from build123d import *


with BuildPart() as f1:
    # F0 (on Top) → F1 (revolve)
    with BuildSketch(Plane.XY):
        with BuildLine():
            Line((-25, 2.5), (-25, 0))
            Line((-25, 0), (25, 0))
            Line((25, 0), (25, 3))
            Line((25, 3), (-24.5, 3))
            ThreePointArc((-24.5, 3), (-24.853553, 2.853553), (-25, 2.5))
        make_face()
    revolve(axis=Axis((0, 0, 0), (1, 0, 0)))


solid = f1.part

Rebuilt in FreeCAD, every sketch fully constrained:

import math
import FreeCAD as App
import Part
import Sketcher
from FreeCAD import Vector
Q = App.Units.Quantity

doc = App.newDocument("Part")
params = doc.addObject("Spreadsheet::Sheet", "Params")
for row, (alias, value) in enumerate([
    ("sketch1_radius", "0.500001 mm"),
    ("sketch1_width", "50 mm"),
    ("sketch1_height", "3 mm"),
    ("sketch1_height2", "2.5 mm"),
    ("revolution_angle", "360 deg"),
], start=1):
    params.set(f"A{row}", alias)
    params.set(f"B{row}", "=" + value)
    params.setAlias(f"B{row}", alias)

body = doc.addObject("PartDesign::Body", "Body")

# Sketch on XY plane
sketch1 = body.newObject("Sketcher::SketchObject", "Sketch")
sketch1.AttachmentSupport = (doc.getObject("XY_Plane"), [""])
sketch1.MapMode = "FlatFace"
sketch1.addGeometry([
    Part.LineSegment(Vector(-25, 2.5, 0), Vector(-25, 0, 0)),  # 0
    Part.LineSegment(Vector(-25, 0, 0), Vector(25, 0, 0)),  # 1
    Part.LineSegment(Vector(25, 0, 0), Vector(25, 3, 0)),  # 2
    Part.LineSegment(Vector(25, 3, 0), Vector(-24.5, 3, 0)),  # 3
    Part.ArcOfCircle(Part.Circle(Vector(-24.5, 2.5, 0), Vector(0, 0, 1), 0.5), math.radians(90), math.radians(180)),  # 4
], False)
sketch1.addConstraint([
    Sketcher.Constraint("Coincident", 0, 2, 1, 1),
    Sketcher.Constraint("Coincident", 1, 2, 2, 1),
    Sketcher.Constraint("Coincident", 2, 2, 3, 1),
    Sketcher.Constraint("Coincident", 3, 2, 4, 1),
    Sketcher.Constraint("Coincident", 4, 2, 0, 1),
    Sketcher.Constraint("Vertical", 0),
    Sketcher.Constraint("Horizontal", 1),
    Sketcher.Constraint("Vertical", 2),
    Sketcher.Constraint("Horizontal", 3),
    Sketcher.Constraint("Symmetric", 0, 2, 1, 2, -1, 1),
    Sketcher.Constraint("Vertical", 4, 3, 3, 2),
    Sketcher.Constraint("Radius", 4, Q("0.500001 mm")),
    Sketcher.Constraint("DistanceX", 1, 1, 1, 2, Q("50 mm")),
    Sketcher.Constraint("DistanceY", 2, 1, 2, 2, Q("3 mm")),
    Sketcher.Constraint("DistanceY", 0, 2, 0, 1, Q("2.5 mm")),
])
sketch1.setExpression("Constraints[11]", "Params.sketch1_radius")
sketch1.setExpression("Constraints[12]", "Params.sketch1_width")
sketch1.setExpression("Constraints[13]", "Params.sketch1_height")
sketch1.setExpression("Constraints[14]", "Params.sketch1_height2")
revolution = body.newObject("PartDesign::Revolution", "Revolution")
revolution.Profile = sketch1
revolution.ReferenceAxis = (sketch1, ["H_Axis"])
revolution.setExpression("Angle", "Params.revolution_angle")

doc.recompute()
